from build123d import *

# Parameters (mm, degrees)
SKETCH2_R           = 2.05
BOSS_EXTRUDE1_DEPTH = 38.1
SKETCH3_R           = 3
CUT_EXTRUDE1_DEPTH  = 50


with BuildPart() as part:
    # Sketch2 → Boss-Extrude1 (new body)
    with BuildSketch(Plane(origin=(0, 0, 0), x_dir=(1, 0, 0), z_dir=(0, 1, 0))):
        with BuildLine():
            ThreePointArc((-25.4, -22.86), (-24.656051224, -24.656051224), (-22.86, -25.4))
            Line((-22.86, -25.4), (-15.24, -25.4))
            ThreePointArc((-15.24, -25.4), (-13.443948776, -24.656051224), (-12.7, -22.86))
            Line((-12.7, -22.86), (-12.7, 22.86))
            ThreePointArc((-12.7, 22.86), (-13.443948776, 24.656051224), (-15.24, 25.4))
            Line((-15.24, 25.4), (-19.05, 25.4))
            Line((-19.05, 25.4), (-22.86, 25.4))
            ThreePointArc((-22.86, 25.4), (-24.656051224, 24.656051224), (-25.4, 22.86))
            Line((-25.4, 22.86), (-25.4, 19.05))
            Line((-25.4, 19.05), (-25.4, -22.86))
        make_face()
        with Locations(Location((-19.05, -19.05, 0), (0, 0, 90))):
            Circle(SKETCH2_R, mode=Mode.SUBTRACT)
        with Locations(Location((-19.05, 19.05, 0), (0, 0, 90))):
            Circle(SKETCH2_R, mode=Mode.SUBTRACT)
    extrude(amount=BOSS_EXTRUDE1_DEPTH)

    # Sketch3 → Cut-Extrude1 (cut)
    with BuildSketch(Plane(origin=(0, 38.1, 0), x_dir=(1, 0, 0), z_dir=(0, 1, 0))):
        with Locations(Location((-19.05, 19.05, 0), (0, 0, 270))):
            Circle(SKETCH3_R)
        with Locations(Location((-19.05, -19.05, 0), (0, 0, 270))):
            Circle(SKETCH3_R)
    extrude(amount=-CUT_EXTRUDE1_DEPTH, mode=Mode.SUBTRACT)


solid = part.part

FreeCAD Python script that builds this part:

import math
import FreeCAD as App
import Part
import Sketcher
Q = App.Units.Quantity

doc = App.newDocument("Part")
body = doc.addObject("PartDesign::Body", "Body")

# Sketch on XZ plane
sketch1 = body.newObject("Sketcher::SketchObject", "Sketch")
sketch1.AttachmentSupport = (doc.getObject("XZ_Plane"), [""])
sketch1.MapMode = "FlatFace"
sketch1.addGeometry([
    Part.ArcOfCircle(Part.Circle(App.Vector(-22.86, 22.86, 0), App.Vector(0, 0, 1), 2.54), math.radians(90), math.radians(180)),  # 0
    Part.LineSegment(App.Vector(-22.86, 25.4, 0), App.Vector(-15.24, 25.4, 0)),  # 1
    Part.ArcOfCircle(Part.Circle(App.Vector(-15.24, 22.86, 0), App.Vector(0, 0, 1), 2.54), math.radians(0), math.radians(90)),  # 2
    Part.LineSegment(App.Vector(-12.7, 22.86, 0), App.Vector(-12.7, -22.86, 0)),  # 3
    Part.ArcOfCircle(Part.Circle(App.Vector(-15.24, -22.86, 0), App.Vector(0, 0, 1), 2.54), math.radians(-90), math.radians(0)),  # 4
    Part.LineSegment(App.Vector(-15.24, -25.4, 0), App.Vector(-22.86, -25.4, 0)),  # 5
    Part.ArcOfCircle(Part.Circle(App.Vector(-22.86, -22.86, 0), App.Vector(0, 0, 1), 2.54), math.radians(-180), math.radians(-90)),  # 6
    Part.LineSegment(App.Vector(-25.4, -22.86, 0), App.Vector(-25.4, 22.86, 0)),  # 7
    Part.Circle(App.Vector(-19.05, 19.05, 0), App.Vector(0, 0, 1), 2.05),  # 8
    Part.Circle(App.Vector(-19.05, -19.05, 0), App.Vector(0, 0, 1), 2.05),  # 9
], False)
sketch1.addConstraint([
    Sketcher.Constraint("Tangent", 0, 1, 1, 1),
    Sketcher.Constraint("Tangent", 1, 2, 2, 2),
    Sketcher.Constraint("Tangent", 2, 1, 3, 1),
    Sketcher.Constraint("Tangent", 3, 2, 4, 2),
    Sketcher.Constraint("Tangent", 4, 1, 5, 1),
    Sketcher.Constraint("Tangent", 5, 2, 6, 2),
    Sketcher.Constraint("Tangent", 6, 1, 7, 1),
    Sketcher.Constraint("Tangent", 7, 2, 0, 2),
    Sketcher.Constraint("Horizontal", 1),
    Sketcher.Constraint("Vertical", 3),
    Sketcher.Constraint("Horizontal", 5),
    Sketcher.Constraint("Vertical", 7),
    Sketcher.Constraint("Equal", 0, 2),
    Sketcher.Constraint("Equal", 2, 4),
    Sketcher.Constraint("Equal", 4, 6),
    Sketcher.Constraint("Equal", 8, 9),
    Sketcher.Constraint("Symmetric", 8, 3, 9, 3, -1),
    Sketcher.Constraint("Radius", 0, Q("0.1 in")),
    Sketcher.Constraint("DistanceX", 1, 1, 1, 2, Q("0.3 in")),
    Sketcher.Constraint("DistanceY", 3, 2, 3, 1, Q("1.8 in")),
    Sketcher.Constraint("DistanceY", -1, 1, 0, 1, Q("1 in")),
    Sketcher.Constraint("DistanceX", 6, 1, -1, 1, Q("1 in")),
    Sketcher.Constraint("DistanceY", 9, 3, 8, 3, Q("1.5 in")),
    Sketcher.Constraint("Diameter", 8, Q("4.1 mm")),
    Sketcher.Constraint("DistanceX", 8, 3, -1, 1, Q("0.75 in")),
])
pad1 = body.newObject("PartDesign::Pad", "Pad")
pad1.Profile = sketch1
pad1.Length = Q("1.5 in")
pad1.Reversed = True

# Sketch on XZ plane
sketch2 = body.newObject("Sketcher::SketchObject", "Sketch001")
sketch2.AttachmentSupport = (doc.getObject("XZ_Plane"), [""])
sketch2.MapMode = "FlatFace"
sketch2.AttachmentOffset = App.Placement(App.Vector(0, 0, -1.5 * 25.4), App.Rotation())
sketch2.addGeometry([
    Part.Circle(App.Vector(-19.05, -19.05, 0), App.Vector(0, 0, 1), 3),
    Part.Circle(App.Vector(-19.05, 19.05, 0), App.Vector(0, 0, 1), 3),
], False)
sketch2.addConstraint([
    Sketcher.Constraint("Equal", 0, 1),
    Sketcher.Constraint("Symmetric", 0, 3, 1, 3, -1),
    Sketcher.Constraint("DistanceY", 0, 3, 1, 3, Q("1.5 in")),
    Sketcher.Constraint("Diameter", 0, Q("6 mm")),
    Sketcher.Constraint("DistanceX", 0, 3, -1, 1, Q("0.75 in")),
])
pocket1 = body.newObject("PartDesign::Pocket", "Pocket")
pocket1.Profile = sketch2
pocket1.Length = 50
pocket1.Reversed = True

doc.recompute()
